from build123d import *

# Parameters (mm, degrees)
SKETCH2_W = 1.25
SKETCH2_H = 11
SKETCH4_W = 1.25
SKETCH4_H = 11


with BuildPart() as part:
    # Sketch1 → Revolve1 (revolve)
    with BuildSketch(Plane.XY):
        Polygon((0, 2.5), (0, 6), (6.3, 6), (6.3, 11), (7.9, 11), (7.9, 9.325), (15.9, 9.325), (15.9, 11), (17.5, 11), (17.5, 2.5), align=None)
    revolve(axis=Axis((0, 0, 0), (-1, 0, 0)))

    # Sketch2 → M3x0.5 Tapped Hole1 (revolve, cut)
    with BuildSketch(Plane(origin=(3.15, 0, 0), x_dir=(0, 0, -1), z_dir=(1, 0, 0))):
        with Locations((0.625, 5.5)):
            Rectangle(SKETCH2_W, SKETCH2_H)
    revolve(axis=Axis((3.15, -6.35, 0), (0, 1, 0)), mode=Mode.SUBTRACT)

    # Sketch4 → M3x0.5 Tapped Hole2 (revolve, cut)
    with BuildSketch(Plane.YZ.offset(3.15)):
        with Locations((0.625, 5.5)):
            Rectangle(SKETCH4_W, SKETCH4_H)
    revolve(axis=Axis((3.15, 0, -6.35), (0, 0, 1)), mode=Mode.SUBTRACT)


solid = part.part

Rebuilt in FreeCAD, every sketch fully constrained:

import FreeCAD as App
import Part
import Sketcher
from FreeCAD import Vector
Q = App.Units.Quantity


def add_polygon(sketch, points):
    """Adds a closed chain of lines whose ends are joined by coincident constraints."""
    first, n = sketch.GeometryCount, len(points)
    for a, b in zip(points, points[1:] + points[:1]):
        sketch.addGeometry(Part.LineSegment(App.Vector(*a, 0), App.Vector(*b, 0)), False)
    for i in range(n):
        sketch.addConstraint(Sketcher.Constraint("Coincident", first + i, 2, first + (i + 1) % n, 1))

doc = App.newDocument("Part")
body = doc.addObject("PartDesign::Body", "Body")

sketch1 = doc.addObject("Sketcher::SketchObject", "Sketch")
body.addObject(sketch1)
sketch1.AttachmentSupport = (doc.XY_Plane, [""])
sketch1.MapMode = "FlatFace"
add_polygon(sketch1, [(0, 6), (0, 2.5), (17.5, 2.5), (17.5, 11), (15.9, 11), (15.9, 9.325), (7.9, 9.325), (7.9, 11), (6.3, 11), (6.3, 6)])
sketch1.addConstraint(Sketcher.Constraint("Vertical", 0))
sketch1.addConstraint(Sketcher.Constraint("Horizontal", 1))
sketch1.addConstraint(Sketcher.Constraint("Vertical", 2))
sketch1.addConstraint(Sketcher.Constraint("Horizontal", 3))
sketch1.addConstraint(Sketcher.Constraint("Vertical", 4))
sketch1.addConstraint(Sketcher.Constraint("Horizontal", 5))
sketch1.addConstraint(Sketcher.Constraint("Vertical", 6))
sketch1.addConstraint(Sketcher.Constraint("Horizontal", 7))
sketch1.addConstraint(Sketcher.Constraint("Vertical", 8))
sketch1.addConstraint(Sketcher.Constraint("Horizontal", 9))
sketch1.addConstraint(Sketcher.Constraint("PointOnObject", 0, 2, -2))
sketch1.addConstraint(Sketcher.Constraint("Horizontal", 3, 2, 6, 2))
sketch1.addConstraint(Sketcher.Constraint("Equal", 3, 7))
sketch1.addConstraint(Sketcher.Constraint("DistanceX", 5, 2, 5, 1, Q("8 mm")))
sketch1.addConstraint(Sketcher.Constraint("DistanceY", 8, 2, 8, 1, Q("5 mm")))
sketch1.addConstraint(Sketcher.Constraint("DistanceX", 1, 1, 1, 2, Q("17.5 mm")))
sketch1.addConstraint(Sketcher.Constraint("DistanceX", 3, 2, 3, 1, Q("1.6 mm")))
sketch1.addConstraint(Sketcher.Constraint("DistanceY", 0, 2, 0, 1, Q("3.5 mm")))
sketch1.addConstraint(Sketcher.Constraint("DistanceY", -1, 1, 2, 2, Q("11 mm")))
sketch1.addConstraint(Sketcher.Constraint("DistanceY", 4, 2, 4, 1, Q("1.675 mm")))
revolution = doc.addObject("PartDesign::Revolution", "Revolution")
body.addObject(revolution)
revolution.Profile = sketch1
revolution.ReferenceAxis = (sketch1, ["H_Axis"])
revolution.Angle = 360

sketch2 = doc.addObject("Sketcher::SketchObject", "Sketch001")
body.addObject(sketch2)
sketch2.AttachmentSupport = (doc.YZ_Plane, [""])
sketch2.MapMode = "FlatFace"
sketch2.AttachmentOffset = App.Placement(Vector(0, 0, 3.15), App.Rotation())
add_polygon(sketch2, [(11, 0), (0, 0), (0, -1.25), (11, -1.25)])
sketch2.addConstraint(Sketcher.Constraint("Horizontal", 0))
sketch2.addConstraint(Sketcher.Constraint("Vertical", 1))
sketch2.addConstraint(Sketcher.Constraint("Horizontal", 2))
sketch2.addConstraint(Sketcher.Constraint("Vertical", 3))
sketch2.addConstraint(Sketcher.Constraint("Coincident", 0, 2, -1, 1))
sketch2.addConstraint(Sketcher.Constraint("DistanceX", 0, 2, 0, 1, Q("11 mm")))
sketch2.addConstraint(Sketcher.Constraint("DistanceY", 1, 2, 1, 1, Q("1.25 mm")))
groove = doc.addObject("PartDesign::Groove", "Groove")
body.addObject(groove)
groove.Profile = sketch2
groove.ReferenceAxis = (sketch2, ["H_Axis"])
groove.Angle = 360

sketch3 = doc.addObject("Sketcher::SketchObject", "Sketch002")
body.addObject(sketch3)
sketch3.AttachmentSupport = (doc.YZ_Plane, [""])
sketch3.MapMode = "FlatFace"
sketch3.AttachmentOffset = App.Placement(Vector(0, 0, 3.15), App.Rotation())
add_polygon(sketch3, [(0, 11), (0, 0), (1.25, 0), (1.25, 11)])
sketch3.addConstraint(Sketcher.Constraint("Vertical", 0))
sketch3.addConstraint(Sketcher.Constraint("Horizontal", 1))
sketch3.addConstraint(Sketcher.Constraint("Vertical", 2))
sketch3.addConstraint(Sketcher.Constraint("Horizontal", 3))
sketch3.addConstraint(Sketcher.Constraint("Coincident", 0, 2, -1, 1))
sketch3.addConstraint(Sketcher.Constraint("DistanceY", 0, 2, 0, 1, Q("11 mm")))
sketch3.addConstraint(Sketcher.Constraint("DistanceX", 1, 1, 1, 2, Q("1.25 mm")))
groove2 = doc.addObject("PartDesign::Groove", "Groove001")
body.addObject(groove2)
groove2.Profile = sketch3
groove2.ReferenceAxis = (sketch3, ["V_Axis"])
groove2.Angle = 360

doc.recompute()
